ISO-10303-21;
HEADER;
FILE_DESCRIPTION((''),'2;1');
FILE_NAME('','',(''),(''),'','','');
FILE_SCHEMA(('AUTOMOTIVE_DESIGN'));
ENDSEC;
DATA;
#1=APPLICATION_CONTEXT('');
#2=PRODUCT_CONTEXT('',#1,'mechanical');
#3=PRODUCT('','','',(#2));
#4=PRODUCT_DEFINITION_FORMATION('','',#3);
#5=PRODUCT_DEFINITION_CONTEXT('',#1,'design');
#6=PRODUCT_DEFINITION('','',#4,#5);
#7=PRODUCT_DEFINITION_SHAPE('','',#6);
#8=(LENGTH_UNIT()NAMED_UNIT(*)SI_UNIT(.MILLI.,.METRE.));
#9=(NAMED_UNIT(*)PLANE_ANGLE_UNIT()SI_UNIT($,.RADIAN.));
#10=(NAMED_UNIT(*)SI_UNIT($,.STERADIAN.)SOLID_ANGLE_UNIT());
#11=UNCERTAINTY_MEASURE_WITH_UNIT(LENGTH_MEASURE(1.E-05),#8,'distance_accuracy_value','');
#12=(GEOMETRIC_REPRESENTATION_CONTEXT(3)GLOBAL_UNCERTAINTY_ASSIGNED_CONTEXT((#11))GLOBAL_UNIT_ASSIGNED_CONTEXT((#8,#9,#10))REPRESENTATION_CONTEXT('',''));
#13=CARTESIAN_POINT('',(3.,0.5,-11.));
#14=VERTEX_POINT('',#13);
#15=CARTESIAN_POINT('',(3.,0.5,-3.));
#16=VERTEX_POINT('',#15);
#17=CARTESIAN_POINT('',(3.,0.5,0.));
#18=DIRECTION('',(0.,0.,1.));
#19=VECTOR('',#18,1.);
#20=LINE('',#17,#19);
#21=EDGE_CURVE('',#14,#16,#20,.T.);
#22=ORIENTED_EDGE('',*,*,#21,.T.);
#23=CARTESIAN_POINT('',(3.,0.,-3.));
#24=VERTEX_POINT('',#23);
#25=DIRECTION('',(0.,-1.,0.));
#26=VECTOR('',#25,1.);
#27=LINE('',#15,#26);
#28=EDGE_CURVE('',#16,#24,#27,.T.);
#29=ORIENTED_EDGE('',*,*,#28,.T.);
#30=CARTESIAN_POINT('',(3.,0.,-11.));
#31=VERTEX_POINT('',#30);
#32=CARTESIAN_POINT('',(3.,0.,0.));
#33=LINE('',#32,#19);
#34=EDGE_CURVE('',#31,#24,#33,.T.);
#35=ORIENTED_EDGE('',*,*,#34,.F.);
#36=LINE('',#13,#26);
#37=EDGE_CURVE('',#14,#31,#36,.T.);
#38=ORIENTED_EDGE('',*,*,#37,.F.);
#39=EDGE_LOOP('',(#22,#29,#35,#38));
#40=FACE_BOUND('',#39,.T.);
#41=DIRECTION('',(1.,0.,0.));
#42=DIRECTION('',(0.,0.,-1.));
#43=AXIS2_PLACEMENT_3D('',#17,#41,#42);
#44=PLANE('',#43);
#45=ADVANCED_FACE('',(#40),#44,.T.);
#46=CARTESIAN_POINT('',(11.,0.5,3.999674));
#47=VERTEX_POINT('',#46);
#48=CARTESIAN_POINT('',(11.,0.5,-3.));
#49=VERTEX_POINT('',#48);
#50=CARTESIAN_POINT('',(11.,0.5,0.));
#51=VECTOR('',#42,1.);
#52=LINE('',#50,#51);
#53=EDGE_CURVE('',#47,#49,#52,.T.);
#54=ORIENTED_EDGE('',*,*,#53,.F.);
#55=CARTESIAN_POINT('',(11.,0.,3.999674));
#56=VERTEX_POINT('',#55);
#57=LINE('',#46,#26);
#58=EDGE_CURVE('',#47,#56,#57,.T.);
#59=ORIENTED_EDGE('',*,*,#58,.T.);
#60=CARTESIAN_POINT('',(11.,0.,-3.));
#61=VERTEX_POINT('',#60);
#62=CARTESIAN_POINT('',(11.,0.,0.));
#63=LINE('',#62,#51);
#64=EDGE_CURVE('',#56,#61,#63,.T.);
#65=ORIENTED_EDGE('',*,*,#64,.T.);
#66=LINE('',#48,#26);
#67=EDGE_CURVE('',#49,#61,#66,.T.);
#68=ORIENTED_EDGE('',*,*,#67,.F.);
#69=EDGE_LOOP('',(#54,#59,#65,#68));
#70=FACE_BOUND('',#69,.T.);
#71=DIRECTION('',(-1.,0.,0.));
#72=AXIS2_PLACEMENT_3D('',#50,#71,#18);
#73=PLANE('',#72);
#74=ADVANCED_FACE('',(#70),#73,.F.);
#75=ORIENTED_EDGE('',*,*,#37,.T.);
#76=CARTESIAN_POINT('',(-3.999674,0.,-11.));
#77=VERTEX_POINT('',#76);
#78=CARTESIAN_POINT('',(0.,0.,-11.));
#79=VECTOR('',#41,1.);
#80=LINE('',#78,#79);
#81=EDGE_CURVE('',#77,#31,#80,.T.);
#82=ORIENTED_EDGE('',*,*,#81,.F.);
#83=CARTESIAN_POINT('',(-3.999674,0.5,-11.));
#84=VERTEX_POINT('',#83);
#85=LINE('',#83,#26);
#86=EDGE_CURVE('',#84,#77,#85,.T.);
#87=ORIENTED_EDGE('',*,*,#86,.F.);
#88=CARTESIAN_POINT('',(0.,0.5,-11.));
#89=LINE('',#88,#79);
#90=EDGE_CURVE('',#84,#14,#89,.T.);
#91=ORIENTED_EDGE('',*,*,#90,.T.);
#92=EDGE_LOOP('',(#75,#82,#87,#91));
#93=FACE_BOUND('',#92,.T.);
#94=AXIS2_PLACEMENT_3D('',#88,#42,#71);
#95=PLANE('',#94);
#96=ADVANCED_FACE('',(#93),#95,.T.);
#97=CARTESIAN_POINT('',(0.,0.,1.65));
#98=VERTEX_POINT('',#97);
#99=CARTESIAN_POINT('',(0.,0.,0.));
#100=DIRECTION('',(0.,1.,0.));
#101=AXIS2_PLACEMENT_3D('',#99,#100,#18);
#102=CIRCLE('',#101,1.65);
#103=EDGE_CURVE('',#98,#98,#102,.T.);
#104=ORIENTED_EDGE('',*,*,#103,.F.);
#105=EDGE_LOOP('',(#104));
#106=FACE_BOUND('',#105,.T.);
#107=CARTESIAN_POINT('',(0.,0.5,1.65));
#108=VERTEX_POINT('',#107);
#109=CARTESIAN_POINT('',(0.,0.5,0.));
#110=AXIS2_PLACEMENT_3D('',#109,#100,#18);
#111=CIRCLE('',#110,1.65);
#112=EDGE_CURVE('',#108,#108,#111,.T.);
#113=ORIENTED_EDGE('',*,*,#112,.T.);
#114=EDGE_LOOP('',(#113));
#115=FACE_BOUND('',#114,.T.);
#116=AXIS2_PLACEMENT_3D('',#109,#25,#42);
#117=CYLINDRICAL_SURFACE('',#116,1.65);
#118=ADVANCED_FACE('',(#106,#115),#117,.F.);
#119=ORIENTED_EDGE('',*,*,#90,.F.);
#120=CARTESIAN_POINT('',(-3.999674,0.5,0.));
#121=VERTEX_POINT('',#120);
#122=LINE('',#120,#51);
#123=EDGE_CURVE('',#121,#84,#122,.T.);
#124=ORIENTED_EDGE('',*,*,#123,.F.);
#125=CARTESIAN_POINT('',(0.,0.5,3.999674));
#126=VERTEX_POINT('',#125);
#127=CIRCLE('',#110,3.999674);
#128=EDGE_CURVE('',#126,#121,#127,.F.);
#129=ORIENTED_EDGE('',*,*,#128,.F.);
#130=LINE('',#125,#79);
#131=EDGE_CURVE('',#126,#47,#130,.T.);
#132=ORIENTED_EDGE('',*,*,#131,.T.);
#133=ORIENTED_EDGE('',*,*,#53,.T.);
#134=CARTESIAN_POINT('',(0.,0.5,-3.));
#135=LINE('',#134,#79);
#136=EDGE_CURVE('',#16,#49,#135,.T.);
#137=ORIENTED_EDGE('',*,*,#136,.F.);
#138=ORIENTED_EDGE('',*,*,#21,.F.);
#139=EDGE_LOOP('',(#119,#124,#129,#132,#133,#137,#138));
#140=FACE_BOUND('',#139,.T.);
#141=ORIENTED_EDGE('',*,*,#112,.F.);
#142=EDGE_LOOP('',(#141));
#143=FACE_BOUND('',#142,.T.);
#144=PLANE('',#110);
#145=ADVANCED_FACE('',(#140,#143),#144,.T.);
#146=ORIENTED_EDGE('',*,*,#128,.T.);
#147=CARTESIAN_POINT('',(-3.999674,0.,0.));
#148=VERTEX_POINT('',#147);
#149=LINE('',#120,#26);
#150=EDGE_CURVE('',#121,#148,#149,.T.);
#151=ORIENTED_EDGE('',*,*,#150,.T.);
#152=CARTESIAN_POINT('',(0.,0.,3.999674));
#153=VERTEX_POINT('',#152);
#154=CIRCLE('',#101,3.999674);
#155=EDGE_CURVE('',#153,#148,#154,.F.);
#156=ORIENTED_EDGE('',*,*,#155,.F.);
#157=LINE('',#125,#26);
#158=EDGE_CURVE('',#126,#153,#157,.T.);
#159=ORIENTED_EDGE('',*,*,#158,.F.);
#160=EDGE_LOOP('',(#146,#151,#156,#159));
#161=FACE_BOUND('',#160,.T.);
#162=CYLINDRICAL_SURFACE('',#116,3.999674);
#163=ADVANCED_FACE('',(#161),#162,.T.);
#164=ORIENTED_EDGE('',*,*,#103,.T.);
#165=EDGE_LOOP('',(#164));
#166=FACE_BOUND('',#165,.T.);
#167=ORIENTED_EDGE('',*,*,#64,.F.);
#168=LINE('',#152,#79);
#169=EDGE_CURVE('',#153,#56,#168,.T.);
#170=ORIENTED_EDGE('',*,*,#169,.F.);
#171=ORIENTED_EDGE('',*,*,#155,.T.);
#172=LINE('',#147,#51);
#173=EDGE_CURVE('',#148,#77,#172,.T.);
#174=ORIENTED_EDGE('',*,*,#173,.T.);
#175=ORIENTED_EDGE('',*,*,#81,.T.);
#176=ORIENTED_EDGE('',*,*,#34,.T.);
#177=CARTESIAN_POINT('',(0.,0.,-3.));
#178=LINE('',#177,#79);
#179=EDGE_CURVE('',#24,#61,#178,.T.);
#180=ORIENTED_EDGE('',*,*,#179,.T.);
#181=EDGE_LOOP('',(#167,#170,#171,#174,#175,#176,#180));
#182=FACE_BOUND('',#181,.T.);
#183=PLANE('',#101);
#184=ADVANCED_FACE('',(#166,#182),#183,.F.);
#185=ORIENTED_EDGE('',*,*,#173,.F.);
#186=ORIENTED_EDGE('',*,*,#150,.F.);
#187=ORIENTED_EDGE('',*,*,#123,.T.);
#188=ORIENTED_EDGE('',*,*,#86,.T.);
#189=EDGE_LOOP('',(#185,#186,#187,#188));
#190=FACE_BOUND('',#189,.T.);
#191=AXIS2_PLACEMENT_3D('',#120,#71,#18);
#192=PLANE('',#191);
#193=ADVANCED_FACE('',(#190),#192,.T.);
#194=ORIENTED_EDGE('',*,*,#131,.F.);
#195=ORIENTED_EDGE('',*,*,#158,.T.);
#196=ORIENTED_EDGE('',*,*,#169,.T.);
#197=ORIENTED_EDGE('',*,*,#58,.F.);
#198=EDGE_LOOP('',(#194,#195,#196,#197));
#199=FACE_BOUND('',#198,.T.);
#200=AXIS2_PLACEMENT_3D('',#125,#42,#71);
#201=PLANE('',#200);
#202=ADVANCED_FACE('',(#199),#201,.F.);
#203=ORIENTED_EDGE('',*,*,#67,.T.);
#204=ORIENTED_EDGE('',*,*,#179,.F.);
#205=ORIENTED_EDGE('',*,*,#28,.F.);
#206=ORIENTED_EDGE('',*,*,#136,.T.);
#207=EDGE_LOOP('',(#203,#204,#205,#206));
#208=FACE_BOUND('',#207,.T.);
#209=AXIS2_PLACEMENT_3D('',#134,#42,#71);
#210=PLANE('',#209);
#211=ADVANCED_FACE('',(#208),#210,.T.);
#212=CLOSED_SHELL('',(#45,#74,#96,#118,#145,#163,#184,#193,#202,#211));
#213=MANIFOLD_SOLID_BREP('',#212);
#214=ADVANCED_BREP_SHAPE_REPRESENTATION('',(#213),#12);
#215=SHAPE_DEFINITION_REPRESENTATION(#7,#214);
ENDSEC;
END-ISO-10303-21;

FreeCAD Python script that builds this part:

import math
import FreeCAD as App
import Part
import Sketcher
Q = App.Units.Quantity

doc = App.newDocument("Part")
body = doc.addObject("PartDesign::Body", "Body")

sketch1 = body.newObject("Sketcher::SketchObject", "Sketch")
sketch1.AttachmentSupport = (doc.getObject("XZ_Plane"), [""])
sketch1.MapMode = "FlatFace"
sketch1.addGeometry([
    Part.LineSegment(App.Vector(11, 3.999674, 0), App.Vector(11, -3, 0)),
    Part.LineSegment(App.Vector(11, -3, 0), App.Vector(3, -3, 0)),
    Part.LineSegment(App.Vector(3, -3, 0), App.Vector(3, -11, 0)),
    Part.LineSegment(App.Vector(3, -11, 0), App.Vector(-3.999674, -11, 0)),
    Part.LineSegment(App.Vector(-3.999674, -11, 0), App.Vector(-3.999674, 0, 0)),
    Part.ArcOfCircle(Part.Circle(App.Vector(0, 0, 0), App.Vector(0, 0, 1), 3.999674), math.radians(90), math.radians(180)),
    Part.LineSegment(App.Vector(0, 3.999674, 0), App.Vector(11, 3.999674, 0)),
    Part.Circle(App.Vector(0, 0, 0), App.Vector(0, 0, 1), 1.65),
], False)
sketch1.addConstraint([
    Sketcher.Constraint("Coincident", 0, 2, 1, 1),
    Sketcher.Constraint("Coincident", 1, 2, 2, 1),
    Sketcher.Constraint("Coincident", 2, 2, 3, 1),
    Sketcher.Constraint("Coincident", 3, 2, 4, 1),
    Sketcher.Constraint("Tangent", 4, 2, 5, 2),
    Sketcher.Constraint("Tangent", 5, 1, 6, 1),
    Sketcher.Constraint("Coincident", 6, 2, 0, 1),
    Sketcher.Constraint("Vertical", 0),
    Sketcher.Constraint("Horizontal", 1),
    Sketcher.Constraint("Vertical", 2),
    Sketcher.Constraint("Horizontal", 3),
    Sketcher.Constraint("Vertical", 4),
    Sketcher.Constraint("Horizontal", 6),
    Sketcher.Constraint("Coincident", 5, 3, -1, 1),
    Sketcher.Constraint("Coincident", 7, 3, -1, 1),
    Sketcher.Constraint("Equal", 3, 0),
    Sketcher.Constraint("Equal", 1, 2),
    Sketcher.Constraint("Diameter", 7, Q("3.3 mm")),
    Sketcher.Constraint("DistanceX", 1, 2, 1, 1, Q("8 mm")),
    Sketcher.Constraint("DistanceX", 6, 1, 6, 2, Q("11 mm")),
    Sketcher.Constraint("Radius", 5, Q("3.999674 mm")),
])
pad1 = body.newObject("PartDesign::Pad", "Pad")
pad1.Profile = sketch1
pad1.Length = 0.5
pad1.Reversed = True

doc.recompute()
